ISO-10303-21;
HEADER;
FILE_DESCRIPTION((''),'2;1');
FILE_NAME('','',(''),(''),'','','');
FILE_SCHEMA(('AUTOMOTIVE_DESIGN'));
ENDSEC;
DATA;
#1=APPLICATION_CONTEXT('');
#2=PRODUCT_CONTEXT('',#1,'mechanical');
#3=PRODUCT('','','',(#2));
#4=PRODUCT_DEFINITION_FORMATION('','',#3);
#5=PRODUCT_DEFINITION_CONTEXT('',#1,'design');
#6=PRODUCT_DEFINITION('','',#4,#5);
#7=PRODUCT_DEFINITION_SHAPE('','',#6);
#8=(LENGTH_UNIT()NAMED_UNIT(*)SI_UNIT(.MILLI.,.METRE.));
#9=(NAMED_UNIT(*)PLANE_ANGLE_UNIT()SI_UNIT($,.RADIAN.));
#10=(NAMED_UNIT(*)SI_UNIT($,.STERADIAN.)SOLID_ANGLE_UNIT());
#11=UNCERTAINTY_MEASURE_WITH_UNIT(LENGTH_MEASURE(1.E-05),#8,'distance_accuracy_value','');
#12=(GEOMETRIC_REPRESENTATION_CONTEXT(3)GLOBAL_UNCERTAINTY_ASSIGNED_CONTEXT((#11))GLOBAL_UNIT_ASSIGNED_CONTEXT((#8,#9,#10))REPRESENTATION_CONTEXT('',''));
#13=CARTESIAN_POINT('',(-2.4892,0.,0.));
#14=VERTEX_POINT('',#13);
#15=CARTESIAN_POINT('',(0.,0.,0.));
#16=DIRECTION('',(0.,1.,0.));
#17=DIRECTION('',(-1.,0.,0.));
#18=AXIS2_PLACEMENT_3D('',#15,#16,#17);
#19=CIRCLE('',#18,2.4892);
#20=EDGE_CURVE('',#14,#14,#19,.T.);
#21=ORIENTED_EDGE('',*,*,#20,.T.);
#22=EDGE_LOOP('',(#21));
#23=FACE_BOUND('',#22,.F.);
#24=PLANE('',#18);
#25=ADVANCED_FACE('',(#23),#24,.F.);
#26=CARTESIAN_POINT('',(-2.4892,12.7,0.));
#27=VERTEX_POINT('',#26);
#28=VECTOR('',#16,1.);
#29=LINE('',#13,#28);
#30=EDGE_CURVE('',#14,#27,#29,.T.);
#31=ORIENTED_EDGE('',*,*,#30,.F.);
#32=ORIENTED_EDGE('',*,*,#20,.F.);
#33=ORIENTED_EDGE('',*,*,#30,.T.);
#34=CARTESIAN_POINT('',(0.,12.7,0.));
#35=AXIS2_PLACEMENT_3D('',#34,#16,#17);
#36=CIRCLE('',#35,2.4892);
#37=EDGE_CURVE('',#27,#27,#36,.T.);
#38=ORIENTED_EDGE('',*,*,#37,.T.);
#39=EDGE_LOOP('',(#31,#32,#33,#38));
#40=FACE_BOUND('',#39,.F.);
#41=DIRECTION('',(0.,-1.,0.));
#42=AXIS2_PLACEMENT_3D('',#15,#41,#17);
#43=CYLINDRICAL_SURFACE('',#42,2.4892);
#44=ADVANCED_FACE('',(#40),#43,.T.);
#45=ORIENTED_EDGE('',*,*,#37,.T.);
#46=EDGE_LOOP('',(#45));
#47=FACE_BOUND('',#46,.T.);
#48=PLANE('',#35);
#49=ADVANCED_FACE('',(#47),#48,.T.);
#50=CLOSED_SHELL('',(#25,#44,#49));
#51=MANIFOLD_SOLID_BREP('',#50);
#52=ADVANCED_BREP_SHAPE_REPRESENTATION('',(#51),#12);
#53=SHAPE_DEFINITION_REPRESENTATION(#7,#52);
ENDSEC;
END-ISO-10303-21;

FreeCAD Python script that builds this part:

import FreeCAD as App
import Part
import Sketcher
from FreeCAD import Vector
Q = App.Units.Quantity

doc = App.newDocument("Part")
body = doc.addObject("PartDesign::Body", "Body")

# Sketch on XZ plane
sketch1 = doc.addObject("Sketcher::SketchObject", "Sketch")
body.addObject(sketch1)
sketch1.AttachmentSupport = (doc.XZ_Plane, [""])
sketch1.MapMode = "FlatFace"
sketch1.addGeometry(Part.Circle(Vector(0, 0, 0), Vector(0, 0, 1), 2.5), False)
sketch1.addConstraint(Sketcher.Constraint("Coincident", 0, 3, -1, 1))
sketch1.addConstraint(Sketcher.Constraint("Diameter", 0, Q("0.196 in")))
pad1 = doc.addObject("PartDesign::Pad", "Pad")
body.addObject(pad1)
pad1.Profile = sketch1
pad1.Length = Q("0.5 in")
pad1.Reversed = True

doc.recompute()
